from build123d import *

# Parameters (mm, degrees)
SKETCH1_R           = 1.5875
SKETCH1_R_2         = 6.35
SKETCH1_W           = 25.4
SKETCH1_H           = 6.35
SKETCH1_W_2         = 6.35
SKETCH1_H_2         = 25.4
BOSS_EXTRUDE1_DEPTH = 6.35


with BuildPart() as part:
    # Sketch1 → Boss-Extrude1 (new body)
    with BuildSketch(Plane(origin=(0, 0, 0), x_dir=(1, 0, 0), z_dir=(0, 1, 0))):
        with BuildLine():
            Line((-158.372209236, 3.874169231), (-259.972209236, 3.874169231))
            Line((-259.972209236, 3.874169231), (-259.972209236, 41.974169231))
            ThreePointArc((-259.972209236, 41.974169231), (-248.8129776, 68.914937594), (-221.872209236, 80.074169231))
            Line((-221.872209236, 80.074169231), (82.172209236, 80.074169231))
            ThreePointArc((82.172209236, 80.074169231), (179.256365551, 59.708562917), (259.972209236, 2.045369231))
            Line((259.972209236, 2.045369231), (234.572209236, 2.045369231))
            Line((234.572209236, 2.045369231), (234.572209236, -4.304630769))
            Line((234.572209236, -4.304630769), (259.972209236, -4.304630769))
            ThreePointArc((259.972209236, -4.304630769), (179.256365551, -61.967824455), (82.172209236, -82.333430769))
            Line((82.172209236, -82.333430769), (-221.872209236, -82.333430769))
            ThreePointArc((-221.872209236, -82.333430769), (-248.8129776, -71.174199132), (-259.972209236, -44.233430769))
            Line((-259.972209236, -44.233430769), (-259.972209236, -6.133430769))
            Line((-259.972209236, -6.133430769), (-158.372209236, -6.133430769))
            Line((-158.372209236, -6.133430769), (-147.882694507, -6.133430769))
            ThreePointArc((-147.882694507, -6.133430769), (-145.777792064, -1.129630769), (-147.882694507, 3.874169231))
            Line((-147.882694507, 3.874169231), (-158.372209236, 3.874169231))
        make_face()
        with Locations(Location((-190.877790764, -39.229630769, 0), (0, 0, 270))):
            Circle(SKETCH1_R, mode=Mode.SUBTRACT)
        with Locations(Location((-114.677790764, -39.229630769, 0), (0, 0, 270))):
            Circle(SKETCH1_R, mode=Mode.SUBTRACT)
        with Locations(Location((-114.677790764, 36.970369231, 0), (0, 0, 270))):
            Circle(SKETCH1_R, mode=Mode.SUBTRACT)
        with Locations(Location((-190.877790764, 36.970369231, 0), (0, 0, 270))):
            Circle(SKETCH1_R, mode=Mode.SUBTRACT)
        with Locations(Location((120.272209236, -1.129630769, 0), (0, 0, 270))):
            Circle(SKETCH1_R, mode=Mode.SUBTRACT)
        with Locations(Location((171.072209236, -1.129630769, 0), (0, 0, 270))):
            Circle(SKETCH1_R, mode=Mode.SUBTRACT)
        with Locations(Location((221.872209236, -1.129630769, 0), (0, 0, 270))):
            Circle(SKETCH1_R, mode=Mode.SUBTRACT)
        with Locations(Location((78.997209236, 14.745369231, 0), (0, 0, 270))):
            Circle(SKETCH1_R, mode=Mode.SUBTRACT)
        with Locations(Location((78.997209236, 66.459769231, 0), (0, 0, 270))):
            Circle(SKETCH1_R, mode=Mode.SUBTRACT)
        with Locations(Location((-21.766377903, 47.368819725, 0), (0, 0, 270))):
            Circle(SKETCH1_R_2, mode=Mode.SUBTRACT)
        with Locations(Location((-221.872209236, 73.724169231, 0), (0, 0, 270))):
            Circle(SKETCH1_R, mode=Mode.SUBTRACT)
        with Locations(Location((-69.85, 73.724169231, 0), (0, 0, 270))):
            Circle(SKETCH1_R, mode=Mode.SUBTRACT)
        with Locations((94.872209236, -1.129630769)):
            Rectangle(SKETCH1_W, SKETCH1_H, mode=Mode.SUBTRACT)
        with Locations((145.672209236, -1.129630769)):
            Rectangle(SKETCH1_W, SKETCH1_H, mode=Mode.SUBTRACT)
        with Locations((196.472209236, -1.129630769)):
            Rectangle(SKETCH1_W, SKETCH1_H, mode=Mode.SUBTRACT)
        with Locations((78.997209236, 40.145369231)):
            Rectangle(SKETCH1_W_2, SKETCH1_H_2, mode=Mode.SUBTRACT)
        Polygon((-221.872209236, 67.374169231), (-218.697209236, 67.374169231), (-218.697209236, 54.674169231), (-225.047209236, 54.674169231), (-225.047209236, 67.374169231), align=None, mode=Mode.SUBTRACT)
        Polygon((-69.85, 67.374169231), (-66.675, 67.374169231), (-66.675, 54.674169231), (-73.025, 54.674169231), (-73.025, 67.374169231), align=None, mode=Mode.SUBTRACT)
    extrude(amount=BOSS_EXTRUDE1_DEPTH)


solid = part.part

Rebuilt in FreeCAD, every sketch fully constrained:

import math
import FreeCAD as App
import Part
import Sketcher
from FreeCAD import Vector
Q = App.Units.Quantity


def add_polygon(sketch, points):
    """Adds a closed chain of lines whose ends are joined by coincident constraints."""
    first, n = sketch.GeometryCount, len(points)
    for a, b in zip(points, points[1:] + points[:1]):
        sketch.addGeometry(Part.LineSegment(App.Vector(*a, 0), App.Vector(*b, 0)), False)
    for i in range(n):
        sketch.addConstraint(Sketcher.Constraint("Coincident", first + i, 2, first + (i + 1) % n, 1))

doc = App.newDocument("Part")
body = doc.addObject("PartDesign::Body", "Body")

sketch1 = body.newObject("Sketcher::SketchObject", "Sketch")
sketch1.AttachmentSupport = (doc.getObject("XZ_Plane"), [""])
sketch1.MapMode = "FlatFace"
sketch1.addGeometry(Part.LineSegment(Vector(-260, -42, 0), Vector(-260, -3.9, 0)), False)
sketch1.addGeometry(Part.LineSegment(Vector(-260, -3.9, 0), Vector(-147.9, -3.9, 0)), False)
sketch1.addGeometry(Part.ArcOfCircle(Part.Circle(Vector(-152.8, 1.1, 0), Vector(0, 0, 1), 7), math.radians(-46), math.radians(46)), False)
sketch1.addGeometry(Part.LineSegment(Vector(-147.9, 6.1, 0), Vector(-260, 6.1, 0)), False)
sketch1.addGeometry(Part.LineSegment(Vector(-260, 6.1, 0), Vector(-260, 44.2, 0)), False)
sketch1.addGeometry(Part.ArcOfCircle(Part.Circle(Vector(-221.9, 44.2, 0), Vector(0, 0, 1), 38.1), math.radians(90), math.radians(180)), False)
sketch1.addGeometry(Part.LineSegment(Vector(-221.9, 82.3, 0), Vector(82.2, 82.3, 0)), False)
sketch1.addGeometry(Part.ArcOfCircle(Part.Circle(Vector(82.2, -159.3, 0), Vector(0, 0, 1), 241.6), math.radians(43), math.radians(90)), False)
sketch1.addGeometry(Part.LineSegment(Vector(260, 4.3, 0), Vector(234.6, 4.3, 0)), False)
sketch1.addGeometry(Part.LineSegment(Vector(234.6, 4.3, 0), Vector(234.6, -2, 0)), False)
sketch1.addGeometry(Part.LineSegment(Vector(234.6, -2, 0), Vector(260, -2, 0)), False)
sketch1.addGeometry(Part.ArcOfCircle(Part.Circle(Vector(82.2, 161.5, 0), Vector(0, 0, 1), 241.6), math.radians(-90), math.radians(-43)), False)
sketch1.addGeometry(Part.LineSegment(Vector(82.2, -80.1, 0), Vector(-221.9, -80.1, 0)), False)
sketch1.addGeometry(Part.ArcOfCircle(Part.Circle(Vector(-221.9, -42, 0), Vector(0, 0, 1), 38.1), math.radians(180), math.radians(270)), False)
sketch1.addGeometry(Part.Circle(Vector(221.9, 1.1, 0), Vector(0, 0, 1), 1.6), False)
add_polygon(sketch1, [(183.8, 4.3), (183.8, -2), (209.2, -2), (209.2, 4.3)])
sketch1.addGeometry(Part.Circle(Vector(171.1, 1.1, 0), Vector(0, 0, 1), 1.6), False)
add_polygon(sketch1, [(133, 4.3), (133, -2), (158.4, -2), (158.4, 4.3)])
sketch1.addGeometry(Part.Circle(Vector(120.3, 1.1, 0), Vector(0, 0, 1), 1.6), False)
add_polygon(sketch1, [(82.2, 4.3), (82.2, -2), (107.6, -2), (107.6, 4.3)])
sketch1.addGeometry(Part.Circle(Vector(79, -14.7, 0), Vector(0, 0, 1), 1.6), False)
sketch1.addGeometry(Part.Circle(Vector(-114.7, 39.2, 0), Vector(0, 0, 1), 1.6), False)
sketch1.addGeometry(Part.Circle(Vector(-190.9, 39.2, 0), Vector(0, 0, 1), 1.6), False)
add_polygon(sketch1, [(75.8, -27.4), (75.8, -52.8), (82.2, -52.8), (82.2, -27.4)])
sketch1.addGeometry(Part.Circle(Vector(79, -66.5, 0), Vector(0, 0, 1), 1.6), False)
sketch1.addGeometry(Part.Circle(Vector(-114.7, -37, 0), Vector(0, 0, 1), 1.6), False)
sketch1.addGeometry(Part.Circle(Vector(-190.9, -37, 0), Vector(0, 0, 1), 1.6), False)
sketch1.addGeometry(Part.Circle(Vector(-21.8, -47.4, 0), Vector(0, 0, 1), 6.3), False)
add_polygon(sketch1, [(-66.7, -67.4), (-66.7, -54.7), (-73, -54.7), (-73, -67.4)])
sketch1.addGeometry(Part.Circle(Vector(-69.8, -73.7, 0), Vector(0, 0, 1), 1.6), False)
add_polygon(sketch1, [(-218.7, -67.4), (-218.7, -54.7), (-225, -54.7), (-225, -67.4)])
sketch1.addGeometry(Part.Circle(Vector(-221.9, -73.7, 0), Vector(0, 0, 1), 1.6), False)
sketch1.addConstraint(Sketcher.Constraint("Coincident", 0, 2, 1, 1))
sketch1.addConstraint(Sketcher.Constraint("Coincident", 1, 2, 2, 1))
sketch1.addConstraint(Sketcher.Constraint("Coincident", 2, 2, 3, 1))
sketch1.addConstraint(Sketcher.Constraint("Coincident", 3, 2, 4, 1))
sketch1.addConstraint(Sketcher.Constraint("Tangent", 4, 2, 5, 2))
sketch1.addConstraint(Sketcher.Constraint("Tangent", 5, 1, 6, 1))
sketch1.addConstraint(Sketcher.Constraint("Tangent", 6, 2, 7, 2))
sketch1.addConstraint(Sketcher.Constraint("Coincident", 7, 1, 8, 1))
sketch1.addConstraint(Sketcher.Constraint("Coincident", 8, 2, 9, 1))
sketch1.addConstraint(Sketcher.Constraint("Coincident", 9, 2, 10, 1))
sketch1.addConstraint(Sketcher.Constraint("Coincident", 10, 2, 11, 2))
sketch1.addConstraint(Sketcher.Constraint("Tangent", 11, 1, 12, 1))
sketch1.addConstraint(Sketcher.Constraint("Tangent", 12, 2, 13, 2))
sketch1.addConstraint(Sketcher.Constraint("Tangent", 13, 1, 0, 1))
sketch1.addConstraint(Sketcher.Constraint("Vertical", 0))
sketch1.addConstraint(Sketcher.Constraint("Horizontal", 1))
sketch1.addConstraint(Sketcher.Constraint("Horizontal", 3))
sketch1.addConstraint(Sketcher.Constraint("Vertical", 4))
sketch1.addConstraint(Sketcher.Constraint("Horizontal", 6))
sketch1.addConstraint(Sketcher.Constraint("Horizontal", 8))
sketch1.addConstraint(Sketcher.Constraint("Vertical", 9))
sketch1.addConstraint(Sketcher.Constraint("Horizontal", 10))
sketch1.addConstraint(Sketcher.Constraint("Horizontal", 12))
sketch1.addConstraint(Sketcher.Constraint("Vertical", 15))
sketch1.addConstraint(Sketcher.Constraint("Horizontal", 16))
sketch1.addConstraint(Sketcher.Constraint("Vertical", 17))
sketch1.addConstraint(Sketcher.Constraint("Horizontal", 18))
sketch1.addConstraint(Sketcher.Constraint("Vertical", 20))
sketch1.addConstraint(Sketcher.Constraint("Horizontal", 21))
sketch1.addConstraint(Sketcher.Constraint("Vertical", 22))
sketch1.addConstraint(Sketcher.Constraint("Horizontal", 23))
sketch1.addConstraint(Sketcher.Constraint("Vertical", 25))
sketch1.addConstraint(Sketcher.Constraint("Horizontal", 26))
sketch1.addConstraint(Sketcher.Constraint("Vertical", 27))
sketch1.addConstraint(Sketcher.Constraint("Horizontal", 28))
sketch1.addConstraint(Sketcher.Constraint("Vertical", 32))
sketch1.addConstraint(Sketcher.Constraint("Horizontal", 33))
sketch1.addConstraint(Sketcher.Constraint("Vertical", 34))
sketch1.addConstraint(Sketcher.Constraint("Horizontal", 35))
sketch1.addConstraint(Sketcher.Constraint("Vertical", 40))
sketch1.addConstraint(Sketcher.Constraint("Horizontal", 41))
sketch1.addConstraint(Sketcher.Constraint("Vertical", 42))
sketch1.addConstraint(Sketcher.Constraint("Horizontal", 43))
sketch1.addConstraint(Sketcher.Constraint("Vertical", 45))
sketch1.addConstraint(Sketcher.Constraint("Horizontal", 46))
sketch1.addConstraint(Sketcher.Constraint("Vertical", 47))
sketch1.addConstraint(Sketcher.Constraint("Horizontal", 48))
sketch1.addConstraint(Sketcher.Constraint("Equal", 7, 11))
sketch1.addConstraint(Sketcher.Constraint("Equal", 5, 13))
sketch1.addConstraint(Sketcher.Constraint("Equal", 14, 19))
sketch1.addConstraint(Sketcher.Constraint("Equal", 19, 24))
sketch1.addConstraint(Sketcher.Constraint("Equal", 24, 29))
sketch1.addConstraint(Sketcher.Constraint("Equal", 29, 30))
sketch1.addConstraint(Sketcher.Constraint("Equal", 30, 31))
sketch1.addConstraint(Sketcher.Constraint("Equal", 31, 36))
sketch1.addConstraint(Sketcher.Constraint("Equal", 36, 37))
sketch1.addConstraint(Sketcher.Constraint("Equal", 37, 38))
sketch1.addConstraint(Sketcher.Constraint("Equal", 38, 44))
sketch1.addConstraint(Sketcher.Constraint("Equal", 44, 49))
sketch1.addConstraint(Sketcher.Constraint("Horizontal", 2, 3, 14, 3))
sketch1.addConstraint(Sketcher.Constraint("Horizontal", 14, 3, 19, 3))
sketch1.addConstraint(Sketcher.Constraint("Horizontal", 19, 3, 24, 3))
sketch1.addConstraint(Sketcher.Constraint("Horizontal", 30, 3, 31, 3))
sketch1.addConstraint(Sketcher.Constraint("Horizontal", 37, 3, 38, 3))
sketch1.addConstraint(Sketcher.Constraint("Horizontal", 44, 3, 49, 3))
sketch1.addConstraint(Sketcher.Constraint("Horizontal", 10, 2, 15, 2))
sketch1.addConstraint(Sketcher.Constraint("Horizontal", 8, 2, 17, 2))
sketch1.addConstraint(Sketcher.Constraint("Horizontal", 16, 2, 20, 2))
sketch1.addConstraint(Sketcher.Constraint("Horizontal", 18, 2, 22, 2))
sketch1.addConstraint(Sketcher.Constraint("Horizontal", 21, 2, 25, 2))
sketch1.addConstraint(Sketcher.Constraint("Horizontal", 23, 2, 27, 2))
sketch1.addConstraint(Sketcher.Constraint("Horizontal", 41, 2, 45, 2))
sketch1.addConstraint(Sketcher.Constraint("Horizontal", 43, 2, 47, 2))
sketch1.addConstraint(Sketcher.Constraint("Vertical", 7, 3, 11, 3))
sketch1.addConstraint(Sketcher.Constraint("Vertical", 5, 3, 13, 3))
sketch1.addConstraint(Sketcher.Constraint("Vertical", 29, 3, 36, 3))
sketch1.addConstraint(Sketcher.Constraint("Vertical", 30, 3, 37, 3))
sketch1.addConstraint(Sketcher.Constraint("Vertical", 31, 3, 38, 3))
sketch1.addConstraint(Sketcher.Constraint("Vertical", 13, 3, 49, 3))
sketch1.addConstraint(Sketcher.Constraint("Vertical", 1, 2, 2, 2))
sketch1.addConstraint(Sketcher.Constraint("Vertical", 7, 1, 10, 2))
sketch1.addConstraint(Sketcher.Constraint("Vertical", 11, 1, 25, 2))
sketch1.addConstraint(Sketcher.Constraint("Vertical", 28, 2, 33, 2))
sketch1.addConstraint(Sketcher.Constraint("Equal", 10, 16))
sketch1.addConstraint(Sketcher.Constraint("Equal", 18, 21))
sketch1.addConstraint(Sketcher.Constraint("Equal", 23, 26))
sketch1.addConstraint(Sketcher.Constraint("Equal", 35, 41))
sketch1.addConstraint(Sketcher.Constraint("Equal", 43, 46))
sketch1.addConstraint(Sketcher.Constraint("Equal", 0, 4))
sketch1.addConstraint(Sketcher.Constraint("Equal", 48, 9))
sketch1.addConstraint(Sketcher.Constraint("Equal", 28, 32))
sketch1.addConstraint(Sketcher.Constraint("Diameter", 39, Q("0.5 in")))
sketch1.addConstraint(Sketcher.Constraint("Radius", 5, Q("1.5 in")))
sketch1.addConstraint(Sketcher.Constraint("DistanceX", 8, 2, 8, 1, Q("1 in")))
sketch1.addConstraint(Sketcher.Constraint("Diameter", 14, Q("0.125 in")))
sketch1.addConstraint(Sketcher.Constraint("DistanceY", 0, 1, 0, 2, Q("1.5 in")))
sketch1.addConstraint(Sketcher.Constraint("DistanceY", 40, 1, 40, 2, Q("0.5 in")))
sketch1.addConstraint(Sketcher.Constraint("DistanceX", 19, 3, 14, 3, Q("2 in")))
sketch1.addConstraint(Sketcher.Constraint("DistanceX", 24, 3, 19, 3, Q("2 in")))
sketch1.addConstraint(Sketcher.Constraint("DistanceX", 31, 3, 30, 3, Q("3 in")))
sketch1.addConstraint(Sketcher.Constraint("DistanceY", 37, 3, 30, 3, Q("3 in")))
sketch1.addConstraint(Sketcher.Constraint("DistanceX", 15, 2, 9, 2, Q("2 in")))
sketch1.addConstraint(Sketcher.Constraint("DistanceX", 20, 2, 15, 2, Q("2 in")))
sketch1.addConstraint(Sketcher.Constraint("DistanceX", 25, 2, 20, 2, Q("2 in")))
sketch1.addConstraint(Sketcher.Constraint("DistanceY", 32, 2, 25, 2, Q("2 in")))
sketch1.addConstraint(Sketcher.Constraint("DistanceY", 40, 2, 1, 2, Q("2 in")))
sketch1.addConstraint(Sketcher.Constraint("DistanceX", 33, 1, 33, 2, Q("0.25 in")))
sketch1.addConstraint(Sketcher.Constraint("DistanceX", 7, 3, 14, 3, Q("5.5 in")))
sketch1.addConstraint(Sketcher.Constraint("DistanceX", 2, 3, 30, 3, Q("1.5 in")))
sketch1.addConstraint(Sketcher.Constraint("DistanceY", 2, 3, 30, 3, Q("1.5 in")))
sketch1.addConstraint(Sketcher.Constraint("DistanceY", 29, 3, 20, 2, Q("0.5 in")))
sketch1.addConstraint(Sketcher.Constraint("DistanceX", 44, 3, -1, 1, Q("2.75 in")))
sketch1.addConstraint(Sketcher.Constraint("Radius", 2, Q("6.999999 mm")))
sketch1.addConstraint(Sketcher.Constraint("DistanceX", 2, 3, 7, 3, Q("9.25 in")))
sketch1.addConstraint(Sketcher.Constraint("DistanceY", 49, 3, 13, 3, Q("1.25 in")))
sketch1.addConstraint(Sketcher.Constraint("DistanceX", 40, 2, -1, 1, Q("2.625 in")))
sketch1.addConstraint(Sketcher.Constraint("DistanceY", 2, 3, 5, 3, Q("1.697 in")))
sketch1.addConstraint(Sketcher.Constraint("DistanceX", 29, 3, 24, 3, Q("1.625 in")))
sketch1.addConstraint(Sketcher.Constraint("DistanceY", 36, 3, 29, 3, Q("2.036 in")))
sketch1.addConstraint(Sketcher.Constraint("DistanceX", 13, 3, 45, 2, Q("0.125 in")))
sketch1.addConstraint(Sketcher.Constraint("DistanceX", 6, 1, 6, 2, Q("304.044418 mm")))
sketch1.addConstraint(Sketcher.Constraint("DistanceX", 2, 3, -1, 1, Q("152.777791 mm")))
sketch1.addConstraint(Sketcher.Constraint("DistanceY", -1, 1, 2, 3, Q("1.129631 mm")))
sketch1.addConstraint(Sketcher.Constraint("DistanceY", 39, 3, -1, 1, Q("47.36882 mm")))
sketch1.addConstraint(Sketcher.Constraint("DistanceX", 39, 3, -1, 1, Q("21.766378 mm")))
pad1 = body.newObject("PartDesign::Pad", "Pad")
pad1.Profile = sketch1
pad1.Length = Q("0.25 in")
pad1.Reversed = True

doc.recompute()
